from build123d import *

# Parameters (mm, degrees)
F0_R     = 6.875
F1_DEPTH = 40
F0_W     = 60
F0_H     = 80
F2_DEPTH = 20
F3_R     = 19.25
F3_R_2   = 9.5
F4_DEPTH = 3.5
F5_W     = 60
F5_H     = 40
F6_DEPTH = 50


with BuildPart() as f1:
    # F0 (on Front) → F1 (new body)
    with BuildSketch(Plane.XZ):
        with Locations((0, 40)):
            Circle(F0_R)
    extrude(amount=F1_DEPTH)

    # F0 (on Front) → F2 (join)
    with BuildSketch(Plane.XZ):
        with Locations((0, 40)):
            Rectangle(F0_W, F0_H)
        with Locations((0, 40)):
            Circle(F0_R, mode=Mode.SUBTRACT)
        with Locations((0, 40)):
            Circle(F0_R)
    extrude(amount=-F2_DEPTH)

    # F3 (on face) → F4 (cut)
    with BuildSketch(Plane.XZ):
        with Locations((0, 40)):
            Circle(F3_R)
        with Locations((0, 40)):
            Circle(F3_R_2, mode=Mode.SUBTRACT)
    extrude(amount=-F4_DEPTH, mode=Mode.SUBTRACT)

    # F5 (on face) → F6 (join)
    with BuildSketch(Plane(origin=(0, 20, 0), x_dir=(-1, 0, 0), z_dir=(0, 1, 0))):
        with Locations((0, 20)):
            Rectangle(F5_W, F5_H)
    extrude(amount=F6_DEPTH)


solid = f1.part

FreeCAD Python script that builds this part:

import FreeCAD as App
import Part
import Sketcher
from FreeCAD import Vector
Q = App.Units.Quantity


def add_polygon(sketch, points):
    """Adds a closed chain of lines whose ends are joined by coincident constraints."""
    first, n = sketch.GeometryCount, len(points)
    for a, b in zip(points, points[1:] + points[:1]):
        sketch.addGeometry(Part.LineSegment(App.Vector(*a, 0), App.Vector(*b, 0)), False)
    for i in range(n):
        sketch.addConstraint(Sketcher.Constraint("Coincident", first + i, 2, first + (i + 1) % n, 1))

doc = App.newDocument("Part")
body = doc.addObject("PartDesign::Body", "Body")

# Sketch on XZ plane
sketch1 = body.newObject("Sketcher::SketchObject", "Sketch")
sketch1.AttachmentSupport = (doc.getObject("XZ_Plane"), [""])
sketch1.MapMode = "FlatFace"
sketch1.addGeometry(Part.Circle(Vector(0, 40, 0), Vector(0, 0, 1), 6.875), False)
sketch1.addConstraint(Sketcher.Constraint("PointOnObject", 0, 3, -2))
sketch1.addConstraint(Sketcher.Constraint("Diameter", 0, Q("13.75 mm")))
sketch1.addConstraint(Sketcher.Constraint("DistanceY", -1, 1, 0, 3, Q("40 mm")))
pad1 = body.newObject("PartDesign::Pad", "Pad")
pad1.Profile = sketch1
pad1.Length = 40

# Sketch on XZ plane
sketch2 = body.newObject("Sketcher::SketchObject", "Sketch001")
sketch2.AttachmentSupport = (doc.getObject("XZ_Plane"), [""])
sketch2.MapMode = "FlatFace"
add_polygon(sketch2, [(-30, 80), (-30, 0), (30, 0), (30, 80)])  # lines 0-3
sketch2.addConstraint(Sketcher.Constraint("Vertical", 0))
sketch2.addConstraint(Sketcher.Constraint("Horizontal", 1))
sketch2.addConstraint(Sketcher.Constraint("Vertical", 2))
sketch2.addConstraint(Sketcher.Constraint("Horizontal", 3))
sketch2.addConstraint(Sketcher.Constraint("Symmetric", 0, 2, 1, 2, -1, 1))
sketch2.addConstraint(Sketcher.Constraint("DistanceX", 1, 1, 1, 2, Q("60 mm")))
sketch2.addConstraint(Sketcher.Constraint("DistanceY", 0, 2, 0, 1, Q("80 mm")))
pad2 = body.newObject("PartDesign::Pad", "Pad001")
pad2.Profile = sketch2
pad2.Length = 20
pad2.Reversed = True

# Sketch on XZ plane
sketch3 = body.newObject("Sketcher::SketchObject", "Sketch002")
sketch3.AttachmentSupport = (doc.getObject("XZ_Plane"), [""])
sketch3.MapMode = "FlatFace"
sketch3.addGeometry(Part.Circle(Vector(0, 40, 0), Vector(0, 0, 1), 19.25), False)
sketch3.addGeometry(Part.Circle(Vector(0, 40, 0), Vector(0, 0, 1), 9.5), False)
sketch3.addConstraint(Sketcher.Constraint("Coincident", 1, 3, 0, 3))
sketch3.addConstraint(Sketcher.Constraint("PointOnObject", 0, 3, -2))
sketch3.addConstraint(Sketcher.Constraint("Diameter", 1, Q("19 mm")))
sketch3.addConstraint(Sketcher.Constraint("Diameter", 0, Q("38.5 mm")))
sketch3.addConstraint(Sketcher.Constraint("DistanceY", -1, 1, 0, 3, Q("40 mm")))
pocket1 = body.newObject("PartDesign::Pocket", "Pocket")
pocket1.Profile = sketch3
pocket1.Length = 3.5

# Sketch on XZ plane
sketch4 = body.newObject("Sketcher::SketchObject", "Sketch003")
sketch4.AttachmentSupport = (doc.getObject("XZ_Plane"), [""])
sketch4.MapMode = "FlatFace"
sketch4.AttachmentOffset = App.Placement(Vector(0, 0, -20), App.Rotation())
add_polygon(sketch4, [(30, 40), (30, 0), (-30, 0), (-30, 40)])  # lines 0-3
sketch4.addConstraint(Sketcher.Constraint("Vertical", 0))
sketch4.addConstraint(Sketcher.Constraint("Horizontal", 1))
sketch4.addConstraint(Sketcher.Constraint("Vertical", 2))
sketch4.addConstraint(Sketcher.Constraint("Horizontal", 3))
sketch4.addConstraint(Sketcher.Constraint("Symmetric", 0, 2, 1, 2, -1, 1))
sketch4.addConstraint(Sketcher.Constraint("DistanceX", 1, 2, 1, 1, Q("60 mm")))
sketch4.addConstraint(Sketcher.Constraint("DistanceY", 0, 2, 0, 1, Q("40 mm")))
pad3 = body.newObject("PartDesign::Pad", "Pad002")
pad3.Profile = sketch4
pad3.Length = 50
pad3.Reversed = True

doc.recompute()
